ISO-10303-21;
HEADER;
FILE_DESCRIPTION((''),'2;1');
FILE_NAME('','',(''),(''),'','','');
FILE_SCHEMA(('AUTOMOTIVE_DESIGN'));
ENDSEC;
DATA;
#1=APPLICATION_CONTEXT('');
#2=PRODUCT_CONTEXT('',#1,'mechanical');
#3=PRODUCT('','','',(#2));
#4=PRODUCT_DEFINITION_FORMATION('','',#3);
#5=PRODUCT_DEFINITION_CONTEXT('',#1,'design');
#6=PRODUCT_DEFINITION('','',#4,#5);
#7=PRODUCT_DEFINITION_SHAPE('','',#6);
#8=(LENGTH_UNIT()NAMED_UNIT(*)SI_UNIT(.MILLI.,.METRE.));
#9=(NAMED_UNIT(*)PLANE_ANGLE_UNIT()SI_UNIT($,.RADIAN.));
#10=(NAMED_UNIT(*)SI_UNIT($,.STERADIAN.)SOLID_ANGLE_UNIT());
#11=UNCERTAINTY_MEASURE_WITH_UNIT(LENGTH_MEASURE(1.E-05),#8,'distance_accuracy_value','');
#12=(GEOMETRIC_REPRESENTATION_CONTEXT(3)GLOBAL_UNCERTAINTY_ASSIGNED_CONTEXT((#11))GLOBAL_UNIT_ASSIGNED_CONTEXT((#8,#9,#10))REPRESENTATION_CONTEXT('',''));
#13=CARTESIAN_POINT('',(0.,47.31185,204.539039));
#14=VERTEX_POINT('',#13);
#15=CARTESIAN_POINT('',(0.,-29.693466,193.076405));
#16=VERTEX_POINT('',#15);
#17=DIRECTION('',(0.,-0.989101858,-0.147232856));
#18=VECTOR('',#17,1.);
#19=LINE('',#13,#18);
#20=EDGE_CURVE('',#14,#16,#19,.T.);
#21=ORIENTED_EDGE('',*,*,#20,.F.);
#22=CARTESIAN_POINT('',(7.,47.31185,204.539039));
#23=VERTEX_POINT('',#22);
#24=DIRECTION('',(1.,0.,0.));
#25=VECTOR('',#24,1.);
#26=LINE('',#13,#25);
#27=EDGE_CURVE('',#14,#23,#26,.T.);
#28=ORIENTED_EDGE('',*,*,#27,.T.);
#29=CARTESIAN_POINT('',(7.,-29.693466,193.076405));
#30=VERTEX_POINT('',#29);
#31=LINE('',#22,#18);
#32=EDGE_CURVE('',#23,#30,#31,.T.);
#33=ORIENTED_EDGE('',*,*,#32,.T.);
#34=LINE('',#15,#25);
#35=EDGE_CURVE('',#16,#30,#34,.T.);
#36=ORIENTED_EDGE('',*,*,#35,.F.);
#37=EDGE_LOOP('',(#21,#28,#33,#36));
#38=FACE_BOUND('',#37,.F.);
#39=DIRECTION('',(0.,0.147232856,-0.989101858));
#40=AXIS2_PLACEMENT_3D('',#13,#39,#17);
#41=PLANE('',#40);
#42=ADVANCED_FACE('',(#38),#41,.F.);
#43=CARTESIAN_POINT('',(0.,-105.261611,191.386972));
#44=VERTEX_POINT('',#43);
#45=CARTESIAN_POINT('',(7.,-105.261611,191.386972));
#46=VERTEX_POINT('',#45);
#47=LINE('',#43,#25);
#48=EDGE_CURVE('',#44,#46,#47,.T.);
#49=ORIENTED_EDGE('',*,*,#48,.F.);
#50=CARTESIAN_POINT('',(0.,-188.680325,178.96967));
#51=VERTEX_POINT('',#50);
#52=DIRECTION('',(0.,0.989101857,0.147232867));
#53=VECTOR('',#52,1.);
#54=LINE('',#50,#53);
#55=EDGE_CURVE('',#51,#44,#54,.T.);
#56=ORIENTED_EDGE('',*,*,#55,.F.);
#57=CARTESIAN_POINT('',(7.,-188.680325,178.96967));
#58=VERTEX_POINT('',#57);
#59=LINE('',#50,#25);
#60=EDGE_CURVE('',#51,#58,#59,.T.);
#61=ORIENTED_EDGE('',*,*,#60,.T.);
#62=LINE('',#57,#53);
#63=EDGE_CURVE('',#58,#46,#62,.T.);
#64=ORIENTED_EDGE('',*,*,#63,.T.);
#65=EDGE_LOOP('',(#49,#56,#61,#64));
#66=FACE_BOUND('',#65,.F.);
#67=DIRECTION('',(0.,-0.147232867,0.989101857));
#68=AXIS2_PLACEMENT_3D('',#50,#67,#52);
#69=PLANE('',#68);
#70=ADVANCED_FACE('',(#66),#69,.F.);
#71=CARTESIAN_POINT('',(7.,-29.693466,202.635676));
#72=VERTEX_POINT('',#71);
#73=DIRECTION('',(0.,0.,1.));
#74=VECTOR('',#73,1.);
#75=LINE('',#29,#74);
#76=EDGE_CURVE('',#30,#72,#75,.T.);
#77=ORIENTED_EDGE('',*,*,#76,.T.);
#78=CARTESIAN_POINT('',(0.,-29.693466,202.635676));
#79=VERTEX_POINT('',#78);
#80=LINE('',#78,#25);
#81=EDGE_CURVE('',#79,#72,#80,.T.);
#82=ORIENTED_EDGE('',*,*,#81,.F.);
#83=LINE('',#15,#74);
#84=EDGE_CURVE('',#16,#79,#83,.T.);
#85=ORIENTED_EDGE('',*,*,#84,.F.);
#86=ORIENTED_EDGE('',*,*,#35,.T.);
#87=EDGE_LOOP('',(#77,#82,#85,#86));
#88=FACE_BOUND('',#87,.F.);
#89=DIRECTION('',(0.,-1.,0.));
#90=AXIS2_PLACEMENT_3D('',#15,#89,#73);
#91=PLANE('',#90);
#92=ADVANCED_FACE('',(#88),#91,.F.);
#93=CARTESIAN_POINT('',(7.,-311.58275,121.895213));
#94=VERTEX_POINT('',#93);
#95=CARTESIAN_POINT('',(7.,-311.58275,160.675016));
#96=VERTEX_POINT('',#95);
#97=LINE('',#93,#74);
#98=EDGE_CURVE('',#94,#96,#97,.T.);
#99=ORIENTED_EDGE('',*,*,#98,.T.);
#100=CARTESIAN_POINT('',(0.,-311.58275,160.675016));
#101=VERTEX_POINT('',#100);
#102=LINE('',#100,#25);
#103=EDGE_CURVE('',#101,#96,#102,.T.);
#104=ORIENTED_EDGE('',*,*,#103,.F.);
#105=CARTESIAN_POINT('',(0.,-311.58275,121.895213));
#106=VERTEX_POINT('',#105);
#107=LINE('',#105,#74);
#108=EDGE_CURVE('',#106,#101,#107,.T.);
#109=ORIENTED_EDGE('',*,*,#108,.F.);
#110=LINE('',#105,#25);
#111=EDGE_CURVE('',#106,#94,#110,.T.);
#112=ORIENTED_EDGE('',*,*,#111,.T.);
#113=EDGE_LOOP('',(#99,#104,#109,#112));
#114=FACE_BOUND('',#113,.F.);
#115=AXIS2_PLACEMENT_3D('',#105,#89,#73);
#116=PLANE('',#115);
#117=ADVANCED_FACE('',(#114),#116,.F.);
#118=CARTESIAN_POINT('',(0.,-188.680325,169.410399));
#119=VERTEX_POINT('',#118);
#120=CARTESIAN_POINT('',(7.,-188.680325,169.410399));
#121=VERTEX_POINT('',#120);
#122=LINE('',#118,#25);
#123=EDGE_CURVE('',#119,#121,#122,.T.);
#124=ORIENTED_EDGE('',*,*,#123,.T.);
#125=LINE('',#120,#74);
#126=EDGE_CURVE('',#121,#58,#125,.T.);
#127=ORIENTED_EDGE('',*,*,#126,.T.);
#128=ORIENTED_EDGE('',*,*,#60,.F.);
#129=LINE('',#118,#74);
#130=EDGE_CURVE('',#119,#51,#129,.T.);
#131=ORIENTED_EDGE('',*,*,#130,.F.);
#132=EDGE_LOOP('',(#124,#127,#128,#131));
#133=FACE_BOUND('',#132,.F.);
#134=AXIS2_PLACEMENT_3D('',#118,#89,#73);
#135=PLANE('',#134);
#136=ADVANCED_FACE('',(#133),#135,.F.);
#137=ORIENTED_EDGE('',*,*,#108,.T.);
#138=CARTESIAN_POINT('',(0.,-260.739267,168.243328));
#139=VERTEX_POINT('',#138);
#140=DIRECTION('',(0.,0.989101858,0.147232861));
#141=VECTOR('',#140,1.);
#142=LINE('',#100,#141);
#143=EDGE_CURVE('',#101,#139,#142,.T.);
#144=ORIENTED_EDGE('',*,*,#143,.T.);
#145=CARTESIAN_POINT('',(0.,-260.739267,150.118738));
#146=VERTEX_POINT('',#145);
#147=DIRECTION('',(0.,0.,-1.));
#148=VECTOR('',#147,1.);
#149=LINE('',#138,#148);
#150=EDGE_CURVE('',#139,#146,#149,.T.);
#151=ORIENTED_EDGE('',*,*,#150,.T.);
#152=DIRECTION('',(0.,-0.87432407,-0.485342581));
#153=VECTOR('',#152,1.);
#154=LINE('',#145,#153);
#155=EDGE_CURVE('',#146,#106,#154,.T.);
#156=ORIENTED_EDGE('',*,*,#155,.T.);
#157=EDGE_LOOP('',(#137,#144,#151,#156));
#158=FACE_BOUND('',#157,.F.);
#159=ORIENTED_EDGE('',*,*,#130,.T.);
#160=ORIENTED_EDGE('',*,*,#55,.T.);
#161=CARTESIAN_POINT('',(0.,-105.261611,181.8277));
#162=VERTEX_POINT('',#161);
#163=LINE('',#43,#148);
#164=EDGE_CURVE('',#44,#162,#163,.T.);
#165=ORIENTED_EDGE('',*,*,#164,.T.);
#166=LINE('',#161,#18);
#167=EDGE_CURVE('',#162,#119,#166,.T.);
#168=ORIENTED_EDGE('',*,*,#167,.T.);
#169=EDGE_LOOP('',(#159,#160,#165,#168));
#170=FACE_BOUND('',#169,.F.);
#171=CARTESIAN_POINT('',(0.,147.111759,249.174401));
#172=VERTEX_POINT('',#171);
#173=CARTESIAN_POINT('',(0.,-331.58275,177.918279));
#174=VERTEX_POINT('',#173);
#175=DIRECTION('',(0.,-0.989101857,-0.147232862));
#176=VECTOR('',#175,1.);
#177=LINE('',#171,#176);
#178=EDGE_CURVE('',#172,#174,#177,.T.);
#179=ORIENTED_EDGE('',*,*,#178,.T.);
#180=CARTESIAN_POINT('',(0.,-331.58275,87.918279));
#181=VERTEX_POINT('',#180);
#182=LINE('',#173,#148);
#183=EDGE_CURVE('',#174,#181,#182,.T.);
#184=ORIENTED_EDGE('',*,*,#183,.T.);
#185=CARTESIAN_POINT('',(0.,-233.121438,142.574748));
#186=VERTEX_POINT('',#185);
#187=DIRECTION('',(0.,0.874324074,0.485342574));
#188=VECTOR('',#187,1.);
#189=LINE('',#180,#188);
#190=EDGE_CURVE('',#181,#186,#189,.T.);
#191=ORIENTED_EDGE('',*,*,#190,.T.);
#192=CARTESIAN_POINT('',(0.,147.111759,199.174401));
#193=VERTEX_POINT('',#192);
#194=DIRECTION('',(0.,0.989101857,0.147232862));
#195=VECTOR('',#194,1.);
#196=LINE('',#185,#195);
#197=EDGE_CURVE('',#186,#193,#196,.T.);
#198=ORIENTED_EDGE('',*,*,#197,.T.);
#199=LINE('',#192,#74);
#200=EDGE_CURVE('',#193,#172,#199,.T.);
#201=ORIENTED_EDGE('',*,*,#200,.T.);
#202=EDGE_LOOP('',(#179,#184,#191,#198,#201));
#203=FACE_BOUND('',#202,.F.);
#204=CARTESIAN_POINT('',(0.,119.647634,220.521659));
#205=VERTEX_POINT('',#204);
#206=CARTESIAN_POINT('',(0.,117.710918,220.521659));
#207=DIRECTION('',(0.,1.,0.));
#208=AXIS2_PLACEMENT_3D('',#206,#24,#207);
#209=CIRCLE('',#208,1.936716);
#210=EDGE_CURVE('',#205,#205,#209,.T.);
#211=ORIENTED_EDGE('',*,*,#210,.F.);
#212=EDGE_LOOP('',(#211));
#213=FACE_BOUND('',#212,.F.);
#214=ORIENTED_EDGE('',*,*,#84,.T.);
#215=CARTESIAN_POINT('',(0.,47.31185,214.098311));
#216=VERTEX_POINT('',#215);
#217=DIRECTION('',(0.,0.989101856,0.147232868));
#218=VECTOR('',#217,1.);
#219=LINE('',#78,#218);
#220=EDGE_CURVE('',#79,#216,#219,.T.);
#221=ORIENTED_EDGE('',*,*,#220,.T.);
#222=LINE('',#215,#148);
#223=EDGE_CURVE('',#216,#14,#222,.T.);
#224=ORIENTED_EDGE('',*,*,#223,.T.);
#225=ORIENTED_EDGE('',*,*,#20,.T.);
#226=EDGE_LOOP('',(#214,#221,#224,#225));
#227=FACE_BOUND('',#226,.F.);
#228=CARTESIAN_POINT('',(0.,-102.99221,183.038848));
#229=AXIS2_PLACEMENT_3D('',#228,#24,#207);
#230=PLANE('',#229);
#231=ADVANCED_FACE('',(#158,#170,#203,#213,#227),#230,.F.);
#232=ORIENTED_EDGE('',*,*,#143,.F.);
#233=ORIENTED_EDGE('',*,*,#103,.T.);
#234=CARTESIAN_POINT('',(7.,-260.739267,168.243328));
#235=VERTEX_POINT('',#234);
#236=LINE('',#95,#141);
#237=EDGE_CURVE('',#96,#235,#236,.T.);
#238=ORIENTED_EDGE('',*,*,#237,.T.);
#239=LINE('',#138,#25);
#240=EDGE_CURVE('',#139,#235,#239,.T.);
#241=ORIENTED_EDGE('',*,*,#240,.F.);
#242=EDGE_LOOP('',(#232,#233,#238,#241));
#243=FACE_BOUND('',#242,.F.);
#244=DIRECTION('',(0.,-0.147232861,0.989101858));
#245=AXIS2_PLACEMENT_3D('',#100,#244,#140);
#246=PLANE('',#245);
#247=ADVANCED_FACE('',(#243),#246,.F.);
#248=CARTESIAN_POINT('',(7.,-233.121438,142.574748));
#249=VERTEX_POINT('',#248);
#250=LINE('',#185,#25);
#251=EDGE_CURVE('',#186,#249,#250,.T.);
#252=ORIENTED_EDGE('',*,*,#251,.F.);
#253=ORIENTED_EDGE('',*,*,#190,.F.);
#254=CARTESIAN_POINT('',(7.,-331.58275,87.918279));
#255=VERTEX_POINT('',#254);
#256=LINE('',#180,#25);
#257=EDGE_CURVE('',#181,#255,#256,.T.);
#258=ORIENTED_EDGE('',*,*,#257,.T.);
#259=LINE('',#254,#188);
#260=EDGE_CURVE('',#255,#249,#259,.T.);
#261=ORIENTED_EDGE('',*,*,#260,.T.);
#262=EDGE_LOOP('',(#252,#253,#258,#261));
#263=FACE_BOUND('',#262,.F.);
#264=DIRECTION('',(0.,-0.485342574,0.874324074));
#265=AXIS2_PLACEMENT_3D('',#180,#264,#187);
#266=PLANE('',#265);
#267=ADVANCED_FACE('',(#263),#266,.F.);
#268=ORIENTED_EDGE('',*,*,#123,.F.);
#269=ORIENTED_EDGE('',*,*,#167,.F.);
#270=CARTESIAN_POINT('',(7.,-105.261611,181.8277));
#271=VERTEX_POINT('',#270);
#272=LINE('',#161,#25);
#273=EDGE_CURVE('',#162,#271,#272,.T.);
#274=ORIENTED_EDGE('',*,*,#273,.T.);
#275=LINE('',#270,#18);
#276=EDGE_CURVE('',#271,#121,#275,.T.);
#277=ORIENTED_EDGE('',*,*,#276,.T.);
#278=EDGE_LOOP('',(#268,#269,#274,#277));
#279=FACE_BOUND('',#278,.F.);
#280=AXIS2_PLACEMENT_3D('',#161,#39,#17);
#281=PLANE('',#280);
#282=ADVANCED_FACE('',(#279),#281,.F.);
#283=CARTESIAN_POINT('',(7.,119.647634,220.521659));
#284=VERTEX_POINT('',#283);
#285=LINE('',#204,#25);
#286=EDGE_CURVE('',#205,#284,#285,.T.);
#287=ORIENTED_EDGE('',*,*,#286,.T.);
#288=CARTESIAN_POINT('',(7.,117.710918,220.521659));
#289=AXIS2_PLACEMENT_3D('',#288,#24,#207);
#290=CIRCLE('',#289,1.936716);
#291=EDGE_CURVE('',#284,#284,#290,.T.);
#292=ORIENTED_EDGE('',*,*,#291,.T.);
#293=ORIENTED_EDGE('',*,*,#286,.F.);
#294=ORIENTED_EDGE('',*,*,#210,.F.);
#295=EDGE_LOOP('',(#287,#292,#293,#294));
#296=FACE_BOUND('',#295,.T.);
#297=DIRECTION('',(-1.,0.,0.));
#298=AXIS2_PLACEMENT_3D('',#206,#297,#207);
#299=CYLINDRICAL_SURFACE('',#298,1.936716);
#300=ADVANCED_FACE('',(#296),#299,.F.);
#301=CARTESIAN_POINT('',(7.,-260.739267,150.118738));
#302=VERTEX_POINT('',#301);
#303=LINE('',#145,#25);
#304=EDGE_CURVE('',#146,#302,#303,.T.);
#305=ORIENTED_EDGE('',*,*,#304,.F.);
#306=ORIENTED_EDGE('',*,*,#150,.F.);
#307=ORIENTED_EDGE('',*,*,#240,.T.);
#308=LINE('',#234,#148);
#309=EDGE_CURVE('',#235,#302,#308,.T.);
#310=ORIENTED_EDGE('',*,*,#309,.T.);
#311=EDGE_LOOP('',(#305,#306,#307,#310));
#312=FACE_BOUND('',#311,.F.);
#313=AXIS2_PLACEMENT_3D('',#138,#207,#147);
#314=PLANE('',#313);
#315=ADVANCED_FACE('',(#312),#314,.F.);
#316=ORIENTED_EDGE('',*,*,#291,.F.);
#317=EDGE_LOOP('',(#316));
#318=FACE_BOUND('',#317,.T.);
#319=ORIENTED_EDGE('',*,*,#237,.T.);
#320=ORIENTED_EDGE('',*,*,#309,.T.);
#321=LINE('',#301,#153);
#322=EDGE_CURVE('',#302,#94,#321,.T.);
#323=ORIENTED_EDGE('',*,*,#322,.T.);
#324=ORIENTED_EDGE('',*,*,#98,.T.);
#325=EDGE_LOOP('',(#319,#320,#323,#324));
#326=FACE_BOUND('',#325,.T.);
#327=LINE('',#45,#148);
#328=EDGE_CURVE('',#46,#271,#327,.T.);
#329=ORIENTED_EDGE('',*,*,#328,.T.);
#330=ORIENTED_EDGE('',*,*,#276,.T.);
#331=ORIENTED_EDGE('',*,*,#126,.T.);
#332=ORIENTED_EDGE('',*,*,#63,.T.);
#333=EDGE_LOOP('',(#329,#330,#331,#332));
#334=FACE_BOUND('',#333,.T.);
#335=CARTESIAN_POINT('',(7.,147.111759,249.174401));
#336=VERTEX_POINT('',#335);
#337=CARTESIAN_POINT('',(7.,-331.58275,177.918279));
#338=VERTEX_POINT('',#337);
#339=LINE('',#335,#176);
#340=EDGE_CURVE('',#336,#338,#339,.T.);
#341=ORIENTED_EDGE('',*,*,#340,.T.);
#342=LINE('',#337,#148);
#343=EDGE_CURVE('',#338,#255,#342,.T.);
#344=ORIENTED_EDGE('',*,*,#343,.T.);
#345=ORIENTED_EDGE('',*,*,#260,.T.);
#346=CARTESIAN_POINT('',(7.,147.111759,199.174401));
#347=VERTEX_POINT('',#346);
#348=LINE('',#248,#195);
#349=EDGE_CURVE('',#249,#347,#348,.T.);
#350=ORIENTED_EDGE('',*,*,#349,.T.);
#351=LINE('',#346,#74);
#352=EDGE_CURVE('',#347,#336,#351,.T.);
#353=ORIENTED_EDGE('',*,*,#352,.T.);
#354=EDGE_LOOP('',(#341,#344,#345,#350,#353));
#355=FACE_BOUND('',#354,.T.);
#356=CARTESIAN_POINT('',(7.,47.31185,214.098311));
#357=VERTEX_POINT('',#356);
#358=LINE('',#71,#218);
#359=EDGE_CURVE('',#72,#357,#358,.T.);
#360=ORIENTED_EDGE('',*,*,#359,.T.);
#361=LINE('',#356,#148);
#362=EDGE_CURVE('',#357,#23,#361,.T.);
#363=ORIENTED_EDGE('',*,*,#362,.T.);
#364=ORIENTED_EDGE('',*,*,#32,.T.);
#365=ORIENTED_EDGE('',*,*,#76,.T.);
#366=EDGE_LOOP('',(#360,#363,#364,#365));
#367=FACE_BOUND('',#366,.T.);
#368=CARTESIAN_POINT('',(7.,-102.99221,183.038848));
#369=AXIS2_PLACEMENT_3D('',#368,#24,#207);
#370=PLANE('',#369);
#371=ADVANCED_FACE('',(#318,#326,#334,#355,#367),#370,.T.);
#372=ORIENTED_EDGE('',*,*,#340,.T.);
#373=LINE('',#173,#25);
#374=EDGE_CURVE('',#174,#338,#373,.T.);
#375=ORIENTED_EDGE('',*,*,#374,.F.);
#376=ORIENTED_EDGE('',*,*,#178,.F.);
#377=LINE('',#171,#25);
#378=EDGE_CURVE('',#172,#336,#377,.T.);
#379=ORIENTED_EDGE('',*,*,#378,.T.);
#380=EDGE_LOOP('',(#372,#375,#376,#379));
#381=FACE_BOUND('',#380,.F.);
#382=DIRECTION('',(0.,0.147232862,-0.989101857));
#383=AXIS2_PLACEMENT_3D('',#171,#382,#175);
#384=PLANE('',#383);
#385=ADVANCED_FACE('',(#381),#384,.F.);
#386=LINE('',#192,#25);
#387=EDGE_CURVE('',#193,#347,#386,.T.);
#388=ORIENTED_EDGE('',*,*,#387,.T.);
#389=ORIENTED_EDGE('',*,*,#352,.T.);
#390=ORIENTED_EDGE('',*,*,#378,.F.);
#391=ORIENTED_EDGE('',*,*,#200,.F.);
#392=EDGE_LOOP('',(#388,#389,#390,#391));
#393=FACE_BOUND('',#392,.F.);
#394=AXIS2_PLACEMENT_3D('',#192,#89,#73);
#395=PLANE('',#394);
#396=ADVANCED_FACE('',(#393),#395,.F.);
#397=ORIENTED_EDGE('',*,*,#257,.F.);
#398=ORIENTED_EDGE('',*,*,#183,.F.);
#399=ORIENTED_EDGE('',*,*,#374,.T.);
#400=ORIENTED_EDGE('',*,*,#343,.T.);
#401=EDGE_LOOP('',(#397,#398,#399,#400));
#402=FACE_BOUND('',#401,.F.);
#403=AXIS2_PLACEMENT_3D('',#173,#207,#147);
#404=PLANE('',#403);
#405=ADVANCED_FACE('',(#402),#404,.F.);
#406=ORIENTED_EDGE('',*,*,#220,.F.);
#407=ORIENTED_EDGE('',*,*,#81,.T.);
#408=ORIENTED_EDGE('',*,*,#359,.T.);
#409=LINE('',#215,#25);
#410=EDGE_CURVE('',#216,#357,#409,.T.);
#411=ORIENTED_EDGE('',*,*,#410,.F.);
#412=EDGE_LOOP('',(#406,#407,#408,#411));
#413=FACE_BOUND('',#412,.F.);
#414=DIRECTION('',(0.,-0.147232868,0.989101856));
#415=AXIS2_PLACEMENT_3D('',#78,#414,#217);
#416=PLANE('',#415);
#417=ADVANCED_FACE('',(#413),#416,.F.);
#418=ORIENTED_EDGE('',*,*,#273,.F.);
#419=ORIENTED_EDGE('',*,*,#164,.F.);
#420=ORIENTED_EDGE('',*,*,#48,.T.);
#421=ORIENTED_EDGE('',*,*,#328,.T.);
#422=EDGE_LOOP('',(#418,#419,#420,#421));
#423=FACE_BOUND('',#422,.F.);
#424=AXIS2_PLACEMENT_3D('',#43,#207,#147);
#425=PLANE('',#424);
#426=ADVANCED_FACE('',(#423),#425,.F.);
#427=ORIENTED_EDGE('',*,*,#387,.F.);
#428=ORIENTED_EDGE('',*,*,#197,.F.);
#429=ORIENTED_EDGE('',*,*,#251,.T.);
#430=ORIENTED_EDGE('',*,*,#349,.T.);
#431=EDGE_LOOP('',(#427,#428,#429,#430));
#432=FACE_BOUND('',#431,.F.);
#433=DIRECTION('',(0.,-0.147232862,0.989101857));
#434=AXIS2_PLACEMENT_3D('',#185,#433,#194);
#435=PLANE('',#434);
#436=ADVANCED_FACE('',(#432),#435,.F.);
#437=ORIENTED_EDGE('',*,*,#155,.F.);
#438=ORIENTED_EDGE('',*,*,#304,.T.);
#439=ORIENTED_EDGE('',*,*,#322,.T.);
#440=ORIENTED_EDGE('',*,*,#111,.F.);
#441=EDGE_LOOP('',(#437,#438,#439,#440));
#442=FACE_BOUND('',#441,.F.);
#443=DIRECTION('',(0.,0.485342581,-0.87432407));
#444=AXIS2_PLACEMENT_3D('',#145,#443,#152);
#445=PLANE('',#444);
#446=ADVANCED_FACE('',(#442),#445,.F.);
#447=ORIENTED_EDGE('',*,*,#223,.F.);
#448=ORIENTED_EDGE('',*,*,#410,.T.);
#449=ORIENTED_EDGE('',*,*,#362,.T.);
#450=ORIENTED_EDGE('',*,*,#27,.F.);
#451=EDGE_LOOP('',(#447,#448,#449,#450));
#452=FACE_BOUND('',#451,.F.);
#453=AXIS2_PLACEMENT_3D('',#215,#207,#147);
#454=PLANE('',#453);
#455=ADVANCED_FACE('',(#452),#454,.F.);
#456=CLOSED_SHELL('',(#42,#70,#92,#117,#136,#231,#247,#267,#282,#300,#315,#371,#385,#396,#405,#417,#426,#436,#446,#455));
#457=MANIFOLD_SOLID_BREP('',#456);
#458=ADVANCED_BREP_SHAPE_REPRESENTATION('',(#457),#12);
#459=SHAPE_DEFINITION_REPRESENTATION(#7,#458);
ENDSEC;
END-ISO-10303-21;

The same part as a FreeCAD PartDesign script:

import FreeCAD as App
import Part
import Sketcher
Q = App.Units.Quantity


def add_polygon(sketch, points):
    """Adds a closed chain of lines whose ends are joined by coincident constraints."""
    first, n = sketch.GeometryCount, len(points)
    for a, b in zip(points, points[1:] + points[:1]):
        sketch.addGeometry(Part.LineSegment(App.Vector(*a, 0), App.Vector(*b, 0)), False)
    for i in range(n):
        sketch.addConstraint(Sketcher.Constraint("Coincident", first + i, 2, first + (i + 1) % n, 1))

doc = App.newDocument("Part")
body = doc.addObject("PartDesign::Body", "Body")

sketch1 = doc.addObject("Sketcher::SketchObject", "Sketch")
body.addObject(sketch1)
sketch1.AttachmentSupport = (doc.YZ_Plane, [""])
sketch1.MapMode = "FlatFace"
add_polygon(sketch1, [(147.111759, 249.174401), (-331.58275, 177.918279), (-331.58275, 87.918279), (-233.121438, 142.574748), (147.111759, 199.174401)])
add_polygon(sketch1, [(-260.739267, 150.118738), (-311.58275, 121.895213), (-311.58275, 160.675016), (-260.739267, 168.243328)])
add_polygon(sketch1, [(-105.261611, 191.386972), (-105.261611, 181.8277), (-188.680325, 169.410399), (-188.680325, 178.96967)])
add_polygon(sketch1, [(47.31185, 204.539039), (-29.693466, 193.076405), (-29.693466, 202.635676), (47.31185, 214.098311)])
sketch1.addGeometry(Part.Circle(App.Vector(117.710918, 220.521659, 0), App.Vector(0, 0, 1), 1.936716), False)
sketch1.addConstraint([
    Sketcher.Constraint("Vertical", 1),
    Sketcher.Constraint("Vertical", 4),
    Sketcher.Constraint("Vertical", 6),
    Sketcher.Constraint("Vertical", 8),
    Sketcher.Constraint("Vertical", 9),
    Sketcher.Constraint("Vertical", 11),
    Sketcher.Constraint("Vertical", 14),
    Sketcher.Constraint("Vertical", 16),
    Sketcher.Constraint("Parallel", 0, 3),
    Sketcher.Constraint("Parallel", 2, 5),
    Sketcher.Constraint("Parallel", 3, 7),
    Sketcher.Constraint("Parallel", 7, 10),
    Sketcher.Constraint("Parallel", 10, 12),
    Sketcher.Constraint("Parallel", 12, 13),
    Sketcher.Constraint("Parallel", 13, 15),
    Sketcher.Constraint("Equal", 11, 14),
    Sketcher.Constraint("DistanceY", 1, 2, 1, 1, Q("90 mm")),
    Sketcher.Constraint("DistanceY", 4, 1, 4, 2, Q("50 mm")),
    Sketcher.Constraint("DistanceX", 1, 2, 5, 2, Q("20 mm")),
    Sketcher.Constraint("Diameter", 17, Q("3.873432 mm")),
    Sketcher.Constraint("DistanceY", 8, 2, 8, 1, Q("18.12459 mm")),
    Sketcher.Constraint("DistanceY", 9, 2, 9, 1, Q("9.559272 mm")),
    Sketcher.Constraint("DistanceY", -1, 1, 3, 2, Q("199.174401 mm")),
    Sketcher.Constraint("DistanceY", -1, 1, 9, 2, Q("181.8277 mm")),
    Sketcher.Constraint("DistanceY", -1, 1, 10, 2, Q("169.410399 mm")),
    Sketcher.Constraint("Distance", 0, Q("483.968871 mm")),
    Sketcher.Constraint("Distance", 3, Q("384.42269 mm")),
    Sketcher.Constraint("Distance", 5, Q("58.151759 mm")),
    Sketcher.Constraint("Distance", 10, Q("84.33784 mm")),
    Sketcher.Constraint("DistanceX", -1, 1, 17, 3, Q("117.710918 mm")),
    Sketcher.Constraint("DistanceY", -1, 1, 17, 3, Q("220.521659 mm")),
    Sketcher.Constraint("DistanceX", 0, 2, -1, 1, Q("331.58275 mm")),
    Sketcher.Constraint("DistanceY", -1, 1, 7, 2, Q("168.243328 mm")),
    Sketcher.Constraint("DistanceX", 9, 2, -1, 1, Q("105.261611 mm")),
    Sketcher.Constraint("DistanceX", -1, 1, 15, 2, Q("47.31185 mm")),
    Sketcher.Constraint("DistanceY", -1, 1, 15, 2, Q("214.098311 mm")),
    Sketcher.Constraint("DistanceX", 11, 2, 13, 2, Q("158.986859 mm")),
])
pad1 = doc.addObject("PartDesign::Pad", "Pad")
body.addObject(pad1)
pad1.Profile = sketch1
pad1.Length = 7

doc.recompute()
